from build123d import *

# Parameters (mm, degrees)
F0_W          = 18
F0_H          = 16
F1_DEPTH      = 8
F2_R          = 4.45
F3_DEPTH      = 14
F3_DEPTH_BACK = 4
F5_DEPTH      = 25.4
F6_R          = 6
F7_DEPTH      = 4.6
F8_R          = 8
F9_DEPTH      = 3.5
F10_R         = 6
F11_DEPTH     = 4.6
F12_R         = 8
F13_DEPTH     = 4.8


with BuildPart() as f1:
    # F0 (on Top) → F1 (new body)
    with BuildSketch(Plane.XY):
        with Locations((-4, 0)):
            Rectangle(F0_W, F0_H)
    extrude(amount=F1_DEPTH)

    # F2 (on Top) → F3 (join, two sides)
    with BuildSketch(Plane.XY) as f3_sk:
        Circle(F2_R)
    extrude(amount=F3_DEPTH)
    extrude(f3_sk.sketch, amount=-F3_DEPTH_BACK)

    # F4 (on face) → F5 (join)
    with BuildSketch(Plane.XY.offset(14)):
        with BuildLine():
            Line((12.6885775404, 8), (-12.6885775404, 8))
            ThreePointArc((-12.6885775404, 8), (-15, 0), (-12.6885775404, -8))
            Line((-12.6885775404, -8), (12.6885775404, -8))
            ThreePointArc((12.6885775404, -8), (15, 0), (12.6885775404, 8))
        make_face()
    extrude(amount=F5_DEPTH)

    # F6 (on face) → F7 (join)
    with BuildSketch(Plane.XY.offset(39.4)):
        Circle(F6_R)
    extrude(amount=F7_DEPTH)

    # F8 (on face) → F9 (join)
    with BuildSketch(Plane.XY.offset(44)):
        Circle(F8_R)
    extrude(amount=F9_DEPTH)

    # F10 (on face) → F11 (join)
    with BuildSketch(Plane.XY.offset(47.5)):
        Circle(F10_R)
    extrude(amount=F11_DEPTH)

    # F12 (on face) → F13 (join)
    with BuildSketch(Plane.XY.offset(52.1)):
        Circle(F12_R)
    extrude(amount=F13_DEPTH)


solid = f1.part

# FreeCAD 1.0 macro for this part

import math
import FreeCAD as App
import Part
import Sketcher
from FreeCAD import Vector
Q = App.Units.Quantity

doc = App.newDocument("Part")
body = doc.addObject("PartDesign::Body", "Body")

sketch1 = doc.addObject("Sketcher::SketchObject", "Sketch")
body.addObject(sketch1)
sketch1.AttachmentSupport = (doc.XY_Plane, [""])
sketch1.MapMode = "FlatFace"
sketch1.addGeometry([
    Part.LineSegment(Vector(-13, 8, 0), Vector(-13, -8, 0)),
    Part.LineSegment(Vector(-13, -8, 0), Vector(5, -8, 0)),
    Part.LineSegment(Vector(5, -8, 0), Vector(5, 8, 0)),
    Part.LineSegment(Vector(5, 8, 0), Vector(-13, 8, 0)),
], False)
sketch1.addConstraint([
    Sketcher.Constraint("Coincident", 0, 2, 1, 1),
    Sketcher.Constraint("Coincident", 1, 2, 2, 1),
    Sketcher.Constraint("Coincident", 2, 2, 3, 1),
    Sketcher.Constraint("Coincident", 3, 2, 0, 1),
    Sketcher.Constraint("Vertical", 0),
    Sketcher.Constraint("Horizontal", 1),
    Sketcher.Constraint("Vertical", 2),
    Sketcher.Constraint("Horizontal", 3),
    Sketcher.Constraint("DistanceX", 1, 1, 1, 2, Q("18 mm")),
    Sketcher.Constraint("DistanceY", 0, 2, 0, 1, Q("16 mm")),
    Sketcher.Constraint("DistanceX", 0, 2, -1, 1, Q("13 mm")),
    Sketcher.Constraint("DistanceY", 0, 2, -1, 1, Q("8 mm")),
])
pad1 = doc.addObject("PartDesign::Pad", "Pad")
body.addObject(pad1)
pad1.Profile = sketch1
pad1.Length = 8

sketch2 = doc.addObject("Sketcher::SketchObject", "Sketch001")
body.addObject(sketch2)
sketch2.AttachmentSupport = (doc.XY_Plane, [""])
sketch2.MapMode = "FlatFace"
sketch2.addGeometry(Part.Circle(Vector(0, 0, 0), Vector(0, 0, 1), 4.45), False)
sketch2.addConstraint([
    Sketcher.Constraint("Coincident", 0, 3, -1, 1),
    Sketcher.Constraint("Diameter", 0, Q("8.9 mm")),
])
pad2 = doc.addObject("PartDesign::Pad", "Pad001")
body.addObject(pad2)
pad2.Profile = sketch2
pad2.Type = "TwoLengths"
pad2.Length = 14
pad2.Length2 = 4

sketch3 = doc.addObject("Sketcher::SketchObject", "Sketch002")
body.addObject(sketch3)
sketch3.AttachmentSupport = (doc.XY_Plane, [""])
sketch3.MapMode = "FlatFace"
sketch3.AttachmentOffset = App.Placement(Vector(0, 0, 14), App.Rotation())
sketch3.addGeometry([
    Part.LineSegment(Vector(12.688578, 8, 0), Vector(-12.688578, 8, 0)),
    Part.ArcOfCircle(Part.Circle(Vector(0, 0, 0), Vector(0, 0, 1), 15), math.radians(147.769047), math.radians(212.230953)),
    Part.LineSegment(Vector(-12.688578, -8, 0), Vector(12.688578, -8, 0)),
    Part.ArcOfCircle(Part.Circle(Vector(0, 0, 0), Vector(0, 0, 1), 15), math.radians(-32.230953), math.radians(32.230953)),
], False)
sketch3.addConstraint([
    Sketcher.Constraint("Coincident", 0, 2, 1, 1),
    Sketcher.Constraint("Coincident", 1, 2, 2, 1),
    Sketcher.Constraint("Coincident", 2, 2, 3, 1),
    Sketcher.Constraint("Coincident", 3, 2, 0, 1),
    Sketcher.Constraint("Horizontal", 0),
    Sketcher.Constraint("Horizontal", 2),
    Sketcher.Constraint("Coincident", 1, 3, -1, 1),
    Sketcher.Constraint("Coincident", 3, 3, -1, 1),
    Sketcher.Constraint("Equal", 1, 3),
    Sketcher.Constraint("Vertical", 0, 2, 1, 2),
    Sketcher.Constraint("Radius", 1, Q("15 mm")),
    Sketcher.Constraint("DistanceY", -1, 1, 0, 2, Q("8 mm")),
])
pad3 = doc.addObject("PartDesign::Pad", "Pad002")
body.addObject(pad3)
pad3.Profile = sketch3
pad3.Length = 25.4

sketch4 = doc.addObject("Sketcher::SketchObject", "Sketch003")
body.addObject(sketch4)
sketch4.AttachmentSupport = (doc.XY_Plane, [""])
sketch4.MapMode = "FlatFace"
sketch4.AttachmentOffset = App.Placement(Vector(0, 0, 39.4), App.Rotation())
sketch4.addGeometry(Part.Circle(Vector(0, 0, 0), Vector(0, 0, 1), 6), False)
sketch4.addConstraint([
    Sketcher.Constraint("Coincident", 0, 3, -1, 1),
    Sketcher.Constraint("Diameter", 0, Q("12 mm")),
])
pad4 = doc.addObject("PartDesign::Pad", "Pad003")
body.addObject(pad4)
pad4.Profile = sketch4
pad4.Length = 4.6

sketch5 = doc.addObject("Sketcher::SketchObject", "Sketch004")
body.addObject(sketch5)
sketch5.AttachmentSupport = (doc.XY_Plane, [""])
sketch5.MapMode = "FlatFace"
sketch5.AttachmentOffset = App.Placement(Vector(0, 0, 44), App.Rotation())
sketch5.addGeometry(Part.Circle(Vector(0, 0, 0), Vector(0, 0, 1), 8), False)
sketch5.addConstraint([
    Sketcher.Constraint("Coincident", 0, 3, -1, 1),
    Sketcher.Constraint("Diameter", 0, Q("16 mm")),
])
pad5 = doc.addObject("PartDesign::Pad", "Pad004")
body.addObject(pad5)
pad5.Profile = sketch5
pad5.Length = 3.5

sketch6 = doc.addObject("Sketcher::SketchObject", "Sketch005")
body.addObject(sketch6)
sketch6.AttachmentSupport = (doc.XY_Plane, [""])
sketch6.MapMode = "FlatFace"
sketch6.AttachmentOffset = App.Placement(Vector(0, 0, 47.5), App.Rotation())
sketch6.addGeometry(Part.Circle(Vector(0, 0, 0), Vector(0, 0, 1), 6), False)
sketch6.addConstraint([
    Sketcher.Constraint("Coincident", 0, 3, -1, 1),
    Sketcher.Constraint("Diameter", 0, Q("12 mm")),
])
pad6 = doc.addObject("PartDesign::Pad", "Pad005")
body.addObject(pad6)
pad6.Profile = sketch6
pad6.Length = 4.6

sketch7 = doc.addObject("Sketcher::SketchObject", "Sketch006")
body.addObject(sketch7)
sketch7.AttachmentSupport = (doc.XY_Plane, [""])
sketch7.MapMode = "FlatFace"
sketch7.AttachmentOffset = App.Placement(Vector(0, 0, 52.1), App.Rotation())
sketch7.addGeometry(Part.Circle(Vector(0, 0, 0), Vector(0, 0, 1), 8), False)
sketch7.addConstraint([
    Sketcher.Constraint("Coincident", 0, 3, -1, 1),
    Sketcher.Constraint("Diameter", 0, Q("16 mm")),
])
pad7 = doc.addObject("PartDesign::Pad", "Pad006")
body.addObject(pad7)
pad7.Profile = sketch7
pad7.Length = 4.8

doc.recompute()
